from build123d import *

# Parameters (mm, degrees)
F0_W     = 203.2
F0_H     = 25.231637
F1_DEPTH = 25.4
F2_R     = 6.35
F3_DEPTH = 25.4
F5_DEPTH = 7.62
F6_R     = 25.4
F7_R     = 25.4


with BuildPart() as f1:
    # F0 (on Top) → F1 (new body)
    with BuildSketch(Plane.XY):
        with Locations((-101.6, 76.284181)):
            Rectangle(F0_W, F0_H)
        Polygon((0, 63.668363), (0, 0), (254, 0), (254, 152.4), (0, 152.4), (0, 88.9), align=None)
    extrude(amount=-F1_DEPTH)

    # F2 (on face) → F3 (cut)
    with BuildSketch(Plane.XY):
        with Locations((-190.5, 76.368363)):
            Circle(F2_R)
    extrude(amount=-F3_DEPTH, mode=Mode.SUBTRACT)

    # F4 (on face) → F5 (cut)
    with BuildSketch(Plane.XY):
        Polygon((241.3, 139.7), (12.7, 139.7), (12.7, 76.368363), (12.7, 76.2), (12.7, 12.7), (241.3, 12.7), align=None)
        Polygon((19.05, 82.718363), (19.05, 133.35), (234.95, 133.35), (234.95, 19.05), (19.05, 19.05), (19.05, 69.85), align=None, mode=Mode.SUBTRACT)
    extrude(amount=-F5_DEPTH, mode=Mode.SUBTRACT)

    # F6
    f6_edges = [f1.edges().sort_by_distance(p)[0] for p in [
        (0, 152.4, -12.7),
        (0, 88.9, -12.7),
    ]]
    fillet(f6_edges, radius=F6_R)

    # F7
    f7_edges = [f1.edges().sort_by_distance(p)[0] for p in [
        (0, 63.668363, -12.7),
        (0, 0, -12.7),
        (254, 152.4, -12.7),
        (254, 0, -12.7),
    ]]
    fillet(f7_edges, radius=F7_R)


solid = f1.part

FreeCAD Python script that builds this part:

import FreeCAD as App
import Part
import Sketcher
Q = App.Units.Quantity


def edges_at(feature, points):
    """Names of the edges that pass closest to the given points."""
    edges = feature.Shape.Edges
    near = lambda p: min(range(len(edges)), key=lambda i: edges[i].distToShape(Part.Vertex(*p))[0])
    return sorted({f"Edge{near(p) + 1}" for p in points})


def add_polygon(sketch, points):
    """Adds a closed chain of lines whose ends are joined by coincident constraints."""
    first, n = sketch.GeometryCount, len(points)
    for a, b in zip(points, points[1:] + points[:1]):
        sketch.addGeometry(Part.LineSegment(App.Vector(*a, 0), App.Vector(*b, 0)), False)
    for i in range(n):
        sketch.addConstraint(Sketcher.Constraint("Coincident", first + i, 2, first + (i + 1) % n, 1))

doc = App.newDocument("Part")
body = doc.addObject("PartDesign::Body", "Body")

# Sketch on XY plane
sketch1 = body.newObject("Sketcher::SketchObject", "Sketch")
sketch1.AttachmentSupport = (doc.getObject("XY_Plane"), [""])
sketch1.MapMode = "FlatFace"
add_polygon(sketch1, [(-203, 89), (-203, 64), (0, 64), (0, 0), (254, 0), (254, 152), (0, 152), (0, 89)])  # lines 0-7
sketch1.addConstraint([
    Sketcher.Constraint("Vertical", 0),
    Sketcher.Constraint("Horizontal", 1),
    Sketcher.Constraint("Vertical", 2),
    Sketcher.Constraint("Horizontal", 3),
    Sketcher.Constraint("Vertical", 4),
    Sketcher.Constraint("Horizontal", 5),
    Sketcher.Constraint("Vertical", 6),
    Sketcher.Constraint("Horizontal", 7),
    Sketcher.Constraint("Coincident", 2, 2, -1, 1),
    Sketcher.Constraint("PointOnObject", 5, 2, -2),
    Sketcher.Constraint("DistanceX", 1, 1, 1, 2, Q("8 in")),
    Sketcher.Constraint("DistanceX", 3, 1, 3, 2, Q("10 in")),
    Sketcher.Constraint("DistanceY", 4, 1, 4, 2, Q("6 in")),
    Sketcher.Constraint("DistanceY", 6, 2, 6, 1, Q("2.5 in")),
    Sketcher.Constraint("DistanceY", 0, 2, 0, 1, 25.231637),
])
pad1 = body.newObject("PartDesign::Pad", "Pad")
pad1.Profile = sketch1
pad1.Length = Q("1 in")
pad1.Reversed = True

# Sketch on XY plane
sketch2 = body.newObject("Sketcher::SketchObject", "Sketch001")
sketch2.AttachmentSupport = (doc.getObject("XY_Plane"), [""])
sketch2.MapMode = "FlatFace"
sketch2.addGeometry(Part.Circle(App.Vector(-190, 76, 0), App.Vector(0, 0, 1), 6), False)
sketch2.addConstraint([
    Sketcher.Constraint("Diameter", 0, Q("0.5 in")),
    Sketcher.Constraint("DistanceX", 0, 3, -1, 1, Q("7.5 in")),
    Sketcher.Constraint("DistanceY", -1, 1, 0, 3, 76.368363),
])
pocket1 = body.newObject("PartDesign::Pocket", "Pocket")
pocket1.Profile = sketch2
pocket1.Length = Q("1 in")

# Sketch on XY plane
sketch3 = body.newObject("Sketcher::SketchObject", "Sketch002")
sketch3.AttachmentSupport = (doc.getObject("XY_Plane"), [""])
sketch3.MapMode = "FlatFace"
add_polygon(sketch3, [(241, 140), (13, 140), (13, 13), (241, 13)])  # lines 0-3
add_polygon(sketch3, [(19, 19), (19, 133), (235, 133), (235, 19)])  # lines 4-7
sketch3.addConstraint([
    Sketcher.Constraint("Horizontal", 0),
    Sketcher.Constraint("Vertical", 1),
    Sketcher.Constraint("Horizontal", 2),
    Sketcher.Constraint("Vertical", 3),
    Sketcher.Constraint("Vertical", 4),
    Sketcher.Constraint("Horizontal", 5),
    Sketcher.Constraint("Vertical", 6),
    Sketcher.Constraint("Horizontal", 7),
    Sketcher.Constraint("DistanceX", 0, 2, 0, 1, Q("9 in")),
    Sketcher.Constraint("DistanceY", 1, 2, 1, 1, Q("5 in")),
    Sketcher.Constraint("DistanceX", 5, 1, 5, 2, Q("8.5 in")),
    Sketcher.Constraint("DistanceY", 4, 1, 4, 2, Q("4.5 in")),
    Sketcher.Constraint("DistanceX", -1, 1, 0, 2, Q("0.5 in")),
    Sketcher.Constraint("DistanceY", -1, 1, 0, 2, Q("5.5 in")),
    Sketcher.Constraint("DistanceX", -1, 1, 4, 2, Q("0.75 in")),
    Sketcher.Constraint("DistanceY", -1, 1, 4, 2, Q("5.25 in")),
])
pocket2 = body.newObject("PartDesign::Pocket", "Pocket001")
pocket2.Profile = sketch3
pocket2.Length = Q("0.3 in")
doc.recompute()

fillet = body.newObject("PartDesign::Fillet", "Fillet")
fillet.Base = (pocket2, edges_at(pocket2, [(0, 152.4, -12.7), (0, 88.9, -12.7)]))
fillet.Radius = Q("1 in")
doc.recompute()

fillet2 = body.newObject("PartDesign::Fillet", "Fillet001")
fillet2.Base = (fillet, edges_at(fillet, [
    (0, 63.668, -12.7),
    (0, 0, -12.7),
    (254, 152.4, -12.7),
    (254, 0, -12.7),
]))
fillet2.Radius = Q("1 in")

doc.recompute()
